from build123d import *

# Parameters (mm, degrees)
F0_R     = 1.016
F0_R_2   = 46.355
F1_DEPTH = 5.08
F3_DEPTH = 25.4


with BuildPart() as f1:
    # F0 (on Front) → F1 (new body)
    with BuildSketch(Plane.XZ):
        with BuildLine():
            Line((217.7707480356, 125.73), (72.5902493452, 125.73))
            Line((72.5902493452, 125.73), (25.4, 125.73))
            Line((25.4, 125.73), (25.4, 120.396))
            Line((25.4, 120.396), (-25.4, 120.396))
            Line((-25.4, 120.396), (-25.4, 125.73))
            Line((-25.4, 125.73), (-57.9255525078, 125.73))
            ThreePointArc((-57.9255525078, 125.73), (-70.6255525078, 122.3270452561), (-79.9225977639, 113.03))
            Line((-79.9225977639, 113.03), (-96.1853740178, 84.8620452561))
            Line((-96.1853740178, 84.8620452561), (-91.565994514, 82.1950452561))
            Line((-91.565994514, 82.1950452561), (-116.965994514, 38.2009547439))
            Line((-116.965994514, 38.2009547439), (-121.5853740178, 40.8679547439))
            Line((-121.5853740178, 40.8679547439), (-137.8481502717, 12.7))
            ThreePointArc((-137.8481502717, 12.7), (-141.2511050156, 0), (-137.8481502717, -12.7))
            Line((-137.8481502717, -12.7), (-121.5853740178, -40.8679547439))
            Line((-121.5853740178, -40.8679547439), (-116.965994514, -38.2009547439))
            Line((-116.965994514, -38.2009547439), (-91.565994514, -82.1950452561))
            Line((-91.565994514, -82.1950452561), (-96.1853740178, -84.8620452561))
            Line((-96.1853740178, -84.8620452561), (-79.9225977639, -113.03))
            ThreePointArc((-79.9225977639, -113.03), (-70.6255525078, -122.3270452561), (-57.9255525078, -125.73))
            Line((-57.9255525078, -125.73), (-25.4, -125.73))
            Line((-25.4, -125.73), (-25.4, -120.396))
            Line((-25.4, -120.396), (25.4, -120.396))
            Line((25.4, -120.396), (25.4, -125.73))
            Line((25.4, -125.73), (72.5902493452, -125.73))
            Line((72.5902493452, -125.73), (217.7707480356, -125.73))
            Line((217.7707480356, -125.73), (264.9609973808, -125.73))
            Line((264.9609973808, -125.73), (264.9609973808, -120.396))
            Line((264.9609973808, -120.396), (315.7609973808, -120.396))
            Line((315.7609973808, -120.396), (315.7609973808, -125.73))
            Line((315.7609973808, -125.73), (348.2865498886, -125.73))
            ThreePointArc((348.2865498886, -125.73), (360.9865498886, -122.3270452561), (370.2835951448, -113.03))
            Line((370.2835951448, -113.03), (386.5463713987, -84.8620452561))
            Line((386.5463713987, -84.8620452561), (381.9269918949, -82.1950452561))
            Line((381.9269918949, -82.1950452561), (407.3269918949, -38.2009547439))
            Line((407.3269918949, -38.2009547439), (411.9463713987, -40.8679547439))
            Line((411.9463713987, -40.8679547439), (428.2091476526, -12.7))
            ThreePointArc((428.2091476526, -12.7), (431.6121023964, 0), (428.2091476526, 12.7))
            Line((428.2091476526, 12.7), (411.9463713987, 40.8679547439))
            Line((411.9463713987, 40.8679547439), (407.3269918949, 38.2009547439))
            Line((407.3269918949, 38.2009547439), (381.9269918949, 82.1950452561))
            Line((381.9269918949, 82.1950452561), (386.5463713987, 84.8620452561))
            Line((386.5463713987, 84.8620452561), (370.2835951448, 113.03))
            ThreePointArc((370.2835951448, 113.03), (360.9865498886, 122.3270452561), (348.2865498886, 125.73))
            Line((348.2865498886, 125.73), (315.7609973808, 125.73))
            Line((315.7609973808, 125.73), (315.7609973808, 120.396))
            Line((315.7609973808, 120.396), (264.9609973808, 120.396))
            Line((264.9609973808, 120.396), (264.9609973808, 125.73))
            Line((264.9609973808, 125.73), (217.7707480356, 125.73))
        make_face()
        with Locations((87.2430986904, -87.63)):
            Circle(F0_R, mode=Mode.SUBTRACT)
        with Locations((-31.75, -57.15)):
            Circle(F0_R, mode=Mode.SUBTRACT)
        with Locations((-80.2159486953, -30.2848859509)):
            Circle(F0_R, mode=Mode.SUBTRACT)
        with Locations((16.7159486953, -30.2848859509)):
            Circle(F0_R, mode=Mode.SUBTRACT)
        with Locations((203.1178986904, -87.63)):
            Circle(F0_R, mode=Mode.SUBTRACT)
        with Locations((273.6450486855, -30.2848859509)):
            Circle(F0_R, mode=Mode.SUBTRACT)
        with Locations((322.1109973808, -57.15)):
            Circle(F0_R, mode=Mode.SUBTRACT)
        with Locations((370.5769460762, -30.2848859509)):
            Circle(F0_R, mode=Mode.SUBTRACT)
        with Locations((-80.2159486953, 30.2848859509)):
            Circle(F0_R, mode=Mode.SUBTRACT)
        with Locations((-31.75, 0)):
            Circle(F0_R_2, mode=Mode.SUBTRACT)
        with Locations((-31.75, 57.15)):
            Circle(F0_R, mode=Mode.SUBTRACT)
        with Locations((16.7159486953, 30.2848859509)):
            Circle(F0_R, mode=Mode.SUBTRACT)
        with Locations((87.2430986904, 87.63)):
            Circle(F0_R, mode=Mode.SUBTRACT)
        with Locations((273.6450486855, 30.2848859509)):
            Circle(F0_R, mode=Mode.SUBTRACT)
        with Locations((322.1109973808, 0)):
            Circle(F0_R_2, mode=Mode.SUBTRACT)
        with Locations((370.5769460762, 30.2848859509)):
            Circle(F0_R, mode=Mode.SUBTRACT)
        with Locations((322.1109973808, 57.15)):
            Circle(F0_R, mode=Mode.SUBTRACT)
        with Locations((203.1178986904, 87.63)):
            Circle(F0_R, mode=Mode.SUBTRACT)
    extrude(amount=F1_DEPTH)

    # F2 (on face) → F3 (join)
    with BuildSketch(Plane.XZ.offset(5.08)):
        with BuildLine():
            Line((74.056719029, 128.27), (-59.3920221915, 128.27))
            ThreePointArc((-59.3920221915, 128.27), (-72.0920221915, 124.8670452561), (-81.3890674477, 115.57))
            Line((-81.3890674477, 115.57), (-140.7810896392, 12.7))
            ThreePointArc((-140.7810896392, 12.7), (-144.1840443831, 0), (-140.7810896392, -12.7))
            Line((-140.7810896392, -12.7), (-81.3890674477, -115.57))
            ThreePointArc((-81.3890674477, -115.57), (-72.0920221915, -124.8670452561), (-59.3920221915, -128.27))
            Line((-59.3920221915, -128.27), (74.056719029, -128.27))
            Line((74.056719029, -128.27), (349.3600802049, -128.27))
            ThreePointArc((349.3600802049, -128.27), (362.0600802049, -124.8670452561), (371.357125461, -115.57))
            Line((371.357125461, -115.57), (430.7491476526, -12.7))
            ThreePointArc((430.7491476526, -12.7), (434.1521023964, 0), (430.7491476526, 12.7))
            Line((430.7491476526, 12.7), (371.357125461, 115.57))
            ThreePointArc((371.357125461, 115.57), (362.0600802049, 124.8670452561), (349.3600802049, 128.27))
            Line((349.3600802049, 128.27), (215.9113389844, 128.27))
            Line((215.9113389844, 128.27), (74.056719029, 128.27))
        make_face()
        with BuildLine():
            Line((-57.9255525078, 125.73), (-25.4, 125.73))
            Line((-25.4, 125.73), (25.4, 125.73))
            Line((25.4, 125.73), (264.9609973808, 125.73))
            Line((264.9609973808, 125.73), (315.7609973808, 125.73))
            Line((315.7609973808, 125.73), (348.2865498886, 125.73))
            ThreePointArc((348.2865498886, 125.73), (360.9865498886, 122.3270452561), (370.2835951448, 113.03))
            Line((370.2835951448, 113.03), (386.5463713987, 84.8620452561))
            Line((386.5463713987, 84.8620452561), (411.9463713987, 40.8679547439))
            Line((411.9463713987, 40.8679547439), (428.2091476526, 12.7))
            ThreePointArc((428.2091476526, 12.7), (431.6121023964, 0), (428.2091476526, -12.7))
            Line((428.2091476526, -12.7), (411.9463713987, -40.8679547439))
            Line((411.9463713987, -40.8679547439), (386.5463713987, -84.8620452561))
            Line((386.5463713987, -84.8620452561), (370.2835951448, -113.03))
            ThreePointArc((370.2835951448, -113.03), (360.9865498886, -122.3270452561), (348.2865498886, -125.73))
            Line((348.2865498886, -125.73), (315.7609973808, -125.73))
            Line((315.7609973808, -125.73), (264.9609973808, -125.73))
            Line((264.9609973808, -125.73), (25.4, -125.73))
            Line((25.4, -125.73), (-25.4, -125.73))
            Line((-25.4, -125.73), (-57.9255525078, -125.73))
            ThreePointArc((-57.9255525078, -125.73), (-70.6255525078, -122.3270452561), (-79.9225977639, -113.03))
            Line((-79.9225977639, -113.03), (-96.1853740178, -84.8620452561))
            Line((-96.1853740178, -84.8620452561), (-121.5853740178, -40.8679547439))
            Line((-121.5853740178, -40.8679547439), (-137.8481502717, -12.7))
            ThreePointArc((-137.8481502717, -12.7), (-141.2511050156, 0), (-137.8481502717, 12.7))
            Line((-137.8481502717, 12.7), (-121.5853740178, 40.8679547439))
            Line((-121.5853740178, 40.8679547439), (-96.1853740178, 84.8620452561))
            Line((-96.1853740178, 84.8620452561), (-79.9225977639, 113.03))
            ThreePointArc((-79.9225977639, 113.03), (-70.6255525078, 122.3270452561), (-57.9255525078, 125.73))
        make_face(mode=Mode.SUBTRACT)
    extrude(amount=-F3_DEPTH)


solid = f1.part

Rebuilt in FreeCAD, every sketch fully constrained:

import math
import FreeCAD as App
import Part
import Sketcher
from FreeCAD import Vector
Q = App.Units.Quantity

doc = App.newDocument("Part")
body = doc.addObject("PartDesign::Body", "Body")

# Sketch on XZ plane
sketch1 = body.newObject("Sketcher::SketchObject", "Sketch")
sketch1.AttachmentSupport = (doc.getObject("XZ_Plane"), [""])
sketch1.MapMode = "FlatFace"
sketch1.addGeometry(Part.LineSegment(Vector(25.4, 125.7, 0), Vector(25.4, 120.4, 0)), False)
sketch1.addGeometry(Part.LineSegment(Vector(25.4, 120.4, 0), Vector(-25.4, 120.4, 0)), False)
sketch1.addGeometry(Part.LineSegment(Vector(-25.4, 120.4, 0), Vector(-25.4, 125.7, 0)), False)
sketch1.addGeometry(Part.LineSegment(Vector(-25.4, 125.7, 0), Vector(-57.9, 125.7, 0)), False)
sketch1.addGeometry(Part.ArcOfCircle(Part.Circle(Vector(-57.9, 100.3, 0), Vector(0, 0, 1), 25.4), math.radians(90), math.radians(150)), False)
sketch1.addGeometry(Part.LineSegment(Vector(-79.9, 113, 0), Vector(-96.2, 84.9, 0)), False)
sketch1.addGeometry(Part.LineSegment(Vector(-96.2, 84.9, 0), Vector(-91.6, 82.2, 0)), False)
sketch1.addGeometry(Part.LineSegment(Vector(-91.6, 82.2, 0), Vector(-117, 38.2, 0)), False)
sketch1.addGeometry(Part.LineSegment(Vector(-117, 38.2, 0), Vector(-121.6, 40.9, 0)), False)
sketch1.addGeometry(Part.LineSegment(Vector(-121.6, 40.9, 0), Vector(-137.8, 12.7, 0)), False)
sketch1.addGeometry(Part.ArcOfCircle(Part.Circle(Vector(-115.9, 0, 0), Vector(0, 0, 1), 25.4), math.radians(150), math.radians(210)), False)
sketch1.addGeometry(Part.LineSegment(Vector(-137.8, -12.7, 0), Vector(-121.6, -40.9, 0)), False)
sketch1.addGeometry(Part.LineSegment(Vector(-121.6, -40.9, 0), Vector(-117, -38.2, 0)), False)
sketch1.addGeometry(Part.LineSegment(Vector(-117, -38.2, 0), Vector(-91.6, -82.2, 0)), False)
sketch1.addGeometry(Part.LineSegment(Vector(-91.6, -82.2, 0), Vector(-96.2, -84.9, 0)), False)
sketch1.addGeometry(Part.LineSegment(Vector(-96.2, -84.9, 0), Vector(-79.9, -113, 0)), False)
sketch1.addGeometry(Part.ArcOfCircle(Part.Circle(Vector(-57.9, -100.3, 0), Vector(0, 0, 1), 25.4), math.radians(-150), math.radians(-90)), False)
sketch1.addGeometry(Part.LineSegment(Vector(-57.9, -125.7, 0), Vector(-25.4, -125.7, 0)), False)
sketch1.addGeometry(Part.LineSegment(Vector(-25.4, -125.7, 0), Vector(-25.4, -120.4, 0)), False)
sketch1.addGeometry(Part.LineSegment(Vector(-25.4, -120.4, 0), Vector(25.4, -120.4, 0)), False)
sketch1.addGeometry(Part.LineSegment(Vector(25.4, -120.4, 0), Vector(25.4, -125.7, 0)), False)
sketch1.addGeometry(Part.LineSegment(Vector(25.4, -125.7, 0), Vector(265, -125.7, 0)), False)
sketch1.addGeometry(Part.LineSegment(Vector(265, -125.7, 0), Vector(265, -120.4, 0)), False)
sketch1.addGeometry(Part.LineSegment(Vector(265, -120.4, 0), Vector(315.8, -120.4, 0)), False)
sketch1.addGeometry(Part.LineSegment(Vector(315.8, -120.4, 0), Vector(315.8, -125.7, 0)), False)
sketch1.addGeometry(Part.LineSegment(Vector(315.8, -125.7, 0), Vector(348.3, -125.7, 0)), False)
sketch1.addGeometry(Part.ArcOfCircle(Part.Circle(Vector(348.3, -100.3, 0), Vector(0, 0, 1), 25.4), math.radians(-90), math.radians(-30)), False)
sketch1.addGeometry(Part.LineSegment(Vector(370.3, -113, 0), Vector(386.5, -84.9, 0)), False)
sketch1.addGeometry(Part.LineSegment(Vector(386.5, -84.9, 0), Vector(381.9, -82.2, 0)), False)
sketch1.addGeometry(Part.LineSegment(Vector(381.9, -82.2, 0), Vector(407.3, -38.2, 0)), False)
sketch1.addGeometry(Part.LineSegment(Vector(407.3, -38.2, 0), Vector(411.9, -40.9, 0)), False)
sketch1.addGeometry(Part.LineSegment(Vector(411.9, -40.9, 0), Vector(428.2, -12.7, 0)), False)
sketch1.addGeometry(Part.ArcOfCircle(Part.Circle(Vector(406.2, 0, 0), Vector(0, 0, 1), 25.4), math.radians(-30), math.radians(30)), False)
sketch1.addGeometry(Part.LineSegment(Vector(428.2, 12.7, 0), Vector(411.9, 40.9, 0)), False)
sketch1.addGeometry(Part.LineSegment(Vector(411.9, 40.9, 0), Vector(407.3, 38.2, 0)), False)
sketch1.addGeometry(Part.LineSegment(Vector(407.3, 38.2, 0), Vector(381.9, 82.2, 0)), False)
sketch1.addGeometry(Part.LineSegment(Vector(381.9, 82.2, 0), Vector(386.5, 84.9, 0)), False)
sketch1.addGeometry(Part.LineSegment(Vector(386.5, 84.9, 0), Vector(370.3, 113, 0)), False)
sketch1.addGeometry(Part.ArcOfCircle(Part.Circle(Vector(348.3, 100.3, 0), Vector(0, 0, 1), 25.4), math.radians(30), math.radians(90)), False)
sketch1.addGeometry(Part.LineSegment(Vector(348.3, 125.7, 0), Vector(315.8, 125.7, 0)), False)
sketch1.addGeometry(Part.LineSegment(Vector(315.8, 125.7, 0), Vector(315.8, 120.4, 0)), False)
sketch1.addGeometry(Part.LineSegment(Vector(315.8, 120.4, 0), Vector(265, 120.4, 0)), False)
sketch1.addGeometry(Part.LineSegment(Vector(265, 120.4, 0), Vector(265, 125.7, 0)), False)
sketch1.addGeometry(Part.LineSegment(Vector(265, 125.7, 0), Vector(25.4, 125.7, 0)), False)
sketch1.addGeometry(Part.Circle(Vector(-31.8, -57.1, 0), Vector(0, 0, 1), 1), False)
sketch1.addGeometry(Part.Circle(Vector(87.2, -87.6, 0), Vector(0, 0, 1), 1), False)
sketch1.addGeometry(Part.Circle(Vector(-80.2, -30.3, 0), Vector(0, 0, 1), 1), False)
sketch1.addGeometry(Part.Circle(Vector(16.7, -30.3, 0), Vector(0, 0, 1), 1), False)
sketch1.addGeometry(Part.Circle(Vector(203.1, -87.6, 0), Vector(0, 0, 1), 1), False)
sketch1.addGeometry(Part.Circle(Vector(322.1, -57.1, 0), Vector(0, 0, 1), 1), False)
sketch1.addGeometry(Part.Circle(Vector(273.6, -30.3, 0), Vector(0, 0, 1), 1), False)
sketch1.addGeometry(Part.Circle(Vector(370.6, -30.3, 0), Vector(0, 0, 1), 1), False)
sketch1.addGeometry(Part.Circle(Vector(-31.8, 0, 0), Vector(0, 0, 1), 46.4), False)
sketch1.addGeometry(Part.Circle(Vector(-80.2, 30.3, 0), Vector(0, 0, 1), 1), False)
sketch1.addGeometry(Part.Circle(Vector(16.7, 30.3, 0), Vector(0, 0, 1), 1), False)
sketch1.addGeometry(Part.Circle(Vector(-31.8, 57.1, 0), Vector(0, 0, 1), 1), False)
sketch1.addGeometry(Part.Circle(Vector(87.2, 87.6, 0), Vector(0, 0, 1), 1), False)
sketch1.addGeometry(Part.Circle(Vector(322.1, 0, 0), Vector(0, 0, 1), 46.4), False)
sketch1.addGeometry(Part.Circle(Vector(273.6, 30.3, 0), Vector(0, 0, 1), 1), False)
sketch1.addGeometry(Part.Circle(Vector(370.6, 30.3, 0), Vector(0, 0, 1), 1), False)
sketch1.addGeometry(Part.Circle(Vector(203.1, 87.6, 0), Vector(0, 0, 1), 1), False)
sketch1.addGeometry(Part.Circle(Vector(322.1, 57.1, 0), Vector(0, 0, 1), 1), False)
sketch1.addConstraint(Sketcher.Constraint("Coincident", 0, 2, 1, 1))
sketch1.addConstraint(Sketcher.Constraint("Coincident", 1, 2, 2, 1))
sketch1.addConstraint(Sketcher.Constraint("Coincident", 2, 2, 3, 1))
sketch1.addConstraint(Sketcher.Constraint("Tangent", 3, 2, 4, 1))
sketch1.addConstraint(Sketcher.Constraint("Tangent", 4, 2, 5, 1))
sketch1.addConstraint(Sketcher.Constraint("Coincident", 5, 2, 6, 1))
sketch1.addConstraint(Sketcher.Constraint("Coincident", 6, 2, 7, 1))
sketch1.addConstraint(Sketcher.Constraint("Coincident", 7, 2, 8, 1))
sketch1.addConstraint(Sketcher.Constraint("Coincident", 8, 2, 9, 1))
sketch1.addConstraint(Sketcher.Constraint("Tangent", 9, 2, 10, 1))
sketch1.addConstraint(Sketcher.Constraint("Tangent", 10, 2, 11, 1))
sketch1.addConstraint(Sketcher.Constraint("Coincident", 11, 2, 12, 1))
sketch1.addConstraint(Sketcher.Constraint("Coincident", 12, 2, 13, 1))
sketch1.addConstraint(Sketcher.Constraint("Coincident", 13, 2, 14, 1))
sketch1.addConstraint(Sketcher.Constraint("Coincident", 14, 2, 15, 1))
sketch1.addConstraint(Sketcher.Constraint("Tangent", 15, 2, 16, 1))
sketch1.addConstraint(Sketcher.Constraint("Tangent", 16, 2, 17, 1))
sketch1.addConstraint(Sketcher.Constraint("Coincident", 17, 2, 18, 1))
sketch1.addConstraint(Sketcher.Constraint("Coincident", 18, 2, 19, 1))
sketch1.addConstraint(Sketcher.Constraint("Coincident", 19, 2, 20, 1))
sketch1.addConstraint(Sketcher.Constraint("Coincident", 20, 2, 21, 1))
sketch1.addConstraint(Sketcher.Constraint("Coincident", 21, 2, 22, 1))
sketch1.addConstraint(Sketcher.Constraint("Coincident", 22, 2, 23, 1))
sketch1.addConstraint(Sketcher.Constraint("Coincident", 23, 2, 24, 1))
sketch1.addConstraint(Sketcher.Constraint("Coincident", 24, 2, 25, 1))
sketch1.addConstraint(Sketcher.Constraint("Tangent", 25, 2, 26, 1))
sketch1.addConstraint(Sketcher.Constraint("Tangent", 26, 2, 27, 1))
sketch1.addConstraint(Sketcher.Constraint("Coincident", 27, 2, 28, 1))
sketch1.addConstraint(Sketcher.Constraint("Coincident", 28, 2, 29, 1))
sketch1.addConstraint(Sketcher.Constraint("Coincident", 29, 2, 30, 1))
sketch1.addConstraint(Sketcher.Constraint("Coincident", 30, 2, 31, 1))
sketch1.addConstraint(Sketcher.Constraint("Tangent", 31, 2, 32, 1))
sketch1.addConstraint(Sketcher.Constraint("Tangent", 32, 2, 33, 1))
sketch1.addConstraint(Sketcher.Constraint("Coincident", 33, 2, 34, 1))
sketch1.addConstraint(Sketcher.Constraint("Coincident", 34, 2, 35, 1))
sketch1.addConstraint(Sketcher.Constraint("Coincident", 35, 2, 36, 1))
sketch1.addConstraint(Sketcher.Constraint("Coincident", 36, 2, 37, 1))
sketch1.addConstraint(Sketcher.Constraint("Tangent", 37, 2, 38, 1))
sketch1.addConstraint(Sketcher.Constraint("Tangent", 38, 2, 39, 1))
sketch1.addConstraint(Sketcher.Constraint("Coincident", 39, 2, 40, 1))
sketch1.addConstraint(Sketcher.Constraint("Coincident", 40, 2, 41, 1))
sketch1.addConstraint(Sketcher.Constraint("Coincident", 41, 2, 42, 1))
sketch1.addConstraint(Sketcher.Constraint("Coincident", 42, 2, 43, 1))
sketch1.addConstraint(Sketcher.Constraint("Coincident", 43, 2, 0, 1))
sketch1.addConstraint(Sketcher.Constraint("Vertical", 0))
sketch1.addConstraint(Sketcher.Constraint("Horizontal", 1))
sketch1.addConstraint(Sketcher.Constraint("Vertical", 2))
sketch1.addConstraint(Sketcher.Constraint("Horizontal", 3))
sketch1.addConstraint(Sketcher.Constraint("Horizontal", 17))
sketch1.addConstraint(Sketcher.Constraint("Vertical", 18))
sketch1.addConstraint(Sketcher.Constraint("Horizontal", 19))
sketch1.addConstraint(Sketcher.Constraint("Vertical", 20))
sketch1.addConstraint(Sketcher.Constraint("Horizontal", 21))
sketch1.addConstraint(Sketcher.Constraint("Vertical", 22))
sketch1.addConstraint(Sketcher.Constraint("Horizontal", 23))
sketch1.addConstraint(Sketcher.Constraint("Vertical", 24))
sketch1.addConstraint(Sketcher.Constraint("Horizontal", 25))
sketch1.addConstraint(Sketcher.Constraint("Horizontal", 39))
sketch1.addConstraint(Sketcher.Constraint("Vertical", 40))
sketch1.addConstraint(Sketcher.Constraint("Horizontal", 41))
sketch1.addConstraint(Sketcher.Constraint("Vertical", 42))
sketch1.addConstraint(Sketcher.Constraint("Horizontal", 43))
sketch1.addConstraint(Sketcher.Constraint("Equal", 4, 10))
sketch1.addConstraint(Sketcher.Constraint("Equal", 10, 16))
sketch1.addConstraint(Sketcher.Constraint("Equal", 16, 26))
sketch1.addConstraint(Sketcher.Constraint("Equal", 26, 32))
sketch1.addConstraint(Sketcher.Constraint("Equal", 32, 38))
sketch1.addConstraint(Sketcher.Constraint("Equal", 44, 45))
sketch1.addConstraint(Sketcher.Constraint("Equal", 45, 46))
sketch1.addConstraint(Sketcher.Constraint("Equal", 46, 47))
sketch1.addConstraint(Sketcher.Constraint("Equal", 47, 48))
sketch1.addConstraint(Sketcher.Constraint("Equal", 48, 49))
sketch1.addConstraint(Sketcher.Constraint("Equal", 49, 50))
sketch1.addConstraint(Sketcher.Constraint("Equal", 50, 51))
sketch1.addConstraint(Sketcher.Constraint("Equal", 51, 53))
sketch1.addConstraint(Sketcher.Constraint("Equal", 53, 54))
sketch1.addConstraint(Sketcher.Constraint("Equal", 54, 55))
sketch1.addConstraint(Sketcher.Constraint("Equal", 55, 56))
sketch1.addConstraint(Sketcher.Constraint("Equal", 52, 57))
sketch1.addConstraint(Sketcher.Constraint("Equal", 56, 58))
sketch1.addConstraint(Sketcher.Constraint("Equal", 58, 59))
sketch1.addConstraint(Sketcher.Constraint("Equal", 59, 60))
sketch1.addConstraint(Sketcher.Constraint("Equal", 60, 61))
sketch1.addConstraint(Sketcher.Constraint("Symmetric", 0, 2, 18, 2, -1, 1))
sketch1.addConstraint(Sketcher.Constraint("Symmetric", 2, 2, 20, 2, -1, 1))
sketch1.addConstraint(Sketcher.Constraint("Symmetric", 17, 2, 20, 2, -2))
sketch1.addConstraint(Sketcher.Constraint("Symmetric", 26, 3, 38, 3, -1))
sketch1.addConstraint(Sketcher.Constraint("Symmetric", 46, 3, 53, 3, -1))
sketch1.addConstraint(Sketcher.Constraint("Symmetric", 47, 3, 54, 3, -1))
sketch1.addConstraint(Sketcher.Constraint("Symmetric", 44, 3, 55, 3, -1))
sketch1.addConstraint(Sketcher.Constraint("Symmetric", 45, 3, 56, 3, -1))
sketch1.addConstraint(Sketcher.Constraint("Symmetric", 50, 3, 58, 3, -1))
sketch1.addConstraint(Sketcher.Constraint("Symmetric", 51, 3, 59, 3, -1))
sketch1.addConstraint(Sketcher.Constraint("Symmetric", 48, 3, 60, 3, -1))
sketch1.addConstraint(Sketcher.Constraint("Symmetric", 49, 3, 61, 3, -1))
sketch1.addConstraint(Sketcher.Constraint("Symmetric", 9, 2, 10, 2, -1))
sketch1.addConstraint(Sketcher.Constraint("Symmetric", 7, 2, 12, 2, -1))
sketch1.addConstraint(Sketcher.Constraint("Symmetric", 6, 2, 13, 2, -1))
sketch1.addConstraint(Sketcher.Constraint("Symmetric", 5, 2, 14, 2, -1))
sketch1.addConstraint(Sketcher.Constraint("Symmetric", 31, 2, 32, 2, -1))
sketch1.addConstraint(Sketcher.Constraint("Symmetric", 29, 2, 34, 2, -1))
sketch1.addConstraint(Sketcher.Constraint("Symmetric", 28, 2, 35, 2, -1))
sketch1.addConstraint(Sketcher.Constraint("Symmetric", 27, 2, 36, 2, -1))
sketch1.addConstraint(Sketcher.Constraint("Symmetric", 23, 2, 40, 2, -1))
sketch1.addConstraint(Sketcher.Constraint("Symmetric", 21, 2, 42, 2, -1))
sketch1.addConstraint(Sketcher.Constraint("PointOnObject", 52, 3, -1))
sketch1.addConstraint(Sketcher.Constraint("PointOnObject", 57, 3, -1))
sketch1.addConstraint(Sketcher.Constraint("Perpendicular", 5, 6))
sketch1.addConstraint(Sketcher.Constraint("Perpendicular", 6, 7))
sketch1.addConstraint(Sketcher.Constraint("Perpendicular", 7, 8))
sketch1.addConstraint(Sketcher.Constraint("Perpendicular", 8, 9))
sketch1.addConstraint(Sketcher.Constraint("Perpendicular", 11, 12))
sketch1.addConstraint(Sketcher.Constraint("Perpendicular", 14, 15))
sketch1.addConstraint(Sketcher.Constraint("Parallel", 9, 27))
sketch1.addConstraint(Sketcher.Constraint("Perpendicular", 27, 28))
sketch1.addConstraint(Sketcher.Constraint("Perpendicular", 28, 29))
sketch1.addConstraint(Sketcher.Constraint("Perpendicular", 29, 30))
sketch1.addConstraint(Sketcher.Constraint("Perpendicular", 30, 31))
sketch1.addConstraint(Sketcher.Constraint("Perpendicular", 33, 34))
sketch1.addConstraint(Sketcher.Constraint("Horizontal", 16, 3, 26, 3))
sketch1.addConstraint(Sketcher.Constraint("Horizontal", 46, 3, 47, 3))
sketch1.addConstraint(Sketcher.Constraint("Horizontal", 45, 3, 48, 3))
sketch1.addConstraint(Sketcher.Constraint("Horizontal", 44, 3, 49, 3))
sketch1.addConstraint(Sketcher.Constraint("Horizontal", 47, 3, 50, 3))
sketch1.addConstraint(Sketcher.Constraint("Horizontal", 50, 3, 51, 3))
sketch1.addConstraint(Sketcher.Constraint("Horizontal", 19, 2, 22, 2))
sketch1.addConstraint(Sketcher.Constraint("Horizontal", 14, 2, 27, 2))
sketch1.addConstraint(Sketcher.Constraint("Horizontal", 13, 2, 28, 2))
sketch1.addConstraint(Sketcher.Constraint("Horizontal", 12, 2, 29, 2))
sketch1.addConstraint(Sketcher.Constraint("Horizontal", 11, 2, 30, 2))
sketch1.addConstraint(Sketcher.Constraint("Vertical", 44, 3, 52, 3))
sketch1.addConstraint(Sketcher.Constraint("Vertical", 49, 3, 57, 3))
sketch1.addConstraint(Sketcher.Constraint("Equal", 19, 23))
sketch1.addConstraint(Sketcher.Constraint("Equal", 17, 25))
sketch1.addConstraint(Sketcher.Constraint("Equal", 6, 8))
sketch1.addConstraint(Sketcher.Constraint("Equal", 5, 9))
sketch1.addConstraint(Sketcher.Constraint("Radius", 4, Q("1 in")))
sketch1.addConstraint(Sketcher.Constraint("Diameter", 44, Q("0.08 in")))
sketch1.addConstraint(Sketcher.Constraint("Diameter", 52, Q("3.65 in")))
sketch1.addConstraint(Sketcher.Constraint("DistanceX", 1, 2, 1, 1, Q("2 in")))
sketch1.addConstraint(Sketcher.Constraint("Distance", 7, Q("2 in")))
sketch1.addConstraint(Sketcher.Constraint("Angle", 5, Q("-120 deg")))
sketch1.addConstraint(Sketcher.Constraint("DistanceY", 0, 2, 0, 1, Q("0.21 in")))
sketch1.addConstraint(Sketcher.Constraint("Distance", 6, Q("0.21 in")))
sketch1.addConstraint(Sketcher.Constraint("DistanceY", -1, 1, 4, 3, Q("3.95 in")))
sketch1.addConstraint(Sketcher.Constraint("DistanceX", 44, 3, -1, 1, Q("1.25 in")))
sketch1.addConstraint(Sketcher.Constraint("DistanceY", 44, 3, -1, 1, Q("2.25 in")))
sketch1.addConstraint(Sketcher.Constraint("DistanceY", 45, 3, -1, 1, Q("3.45 in")))
sketch1.addConstraint(Sketcher.Constraint("DistanceX", -1, 1, 45, 3, 87.243099))
sketch1.addConstraint(Sketcher.Constraint("DistanceX", -1, 1, 48, 3, 203.117899))
sketch1.addConstraint(Sketcher.Constraint("DistanceX", 3, 2, 3, 1, 32.525553))
sketch1.addConstraint(Sketcher.Constraint("DistanceX", 21, 1, 21, 2, 239.560997))
sketch1.addConstraint(Sketcher.Constraint("DistanceX", 46, 3, -1, 1, 80.215949))
sketch1.addConstraint(Sketcher.Constraint("DistanceX", -1, 1, 47, 3, 16.715949))
sketch1.addConstraint(Sketcher.Constraint("DistanceX", -1, 1, 50, 3, 273.645049))
sketch1.addConstraint(Sketcher.Constraint("DistanceY", 46, 3, -1, 1, 30.284886))
sketch1.addConstraint(Sketcher.Constraint("DistanceX", -1, 1, 49, 3, 322.110997))
sketch1.addConstraint(Sketcher.Constraint("DistanceX", -1, 1, 51, 3, 370.576946))
pad1 = body.newObject("PartDesign::Pad", "Pad")
pad1.Profile = sketch1
pad1.Length = Q("0.2 in")

# Sketch on XZ plane
sketch2 = body.newObject("Sketcher::SketchObject", "Sketch001")
sketch2.AttachmentSupport = (doc.getObject("XZ_Plane"), [""])
sketch2.MapMode = "FlatFace"
sketch2.AttachmentOffset = App.Placement(Vector(0, 0, 0.2 * 25.4), App.Rotation())
sketch2.addGeometry(Part.ArcOfCircle(Part.Circle(Vector(-59, 103, 0), Vector(0, 0, 1), 25), math.radians(90), math.radians(150)), False)
sketch2.addGeometry(Part.LineSegment(Vector(-81, 116, 0), Vector(-141, 13, 0)), False)
sketch2.addGeometry(Part.ArcOfCircle(Part.Circle(Vector(-119, 0, 0), Vector(0, 0, 1), 25), math.radians(150), math.radians(210)), False)
sketch2.addGeometry(Part.LineSegment(Vector(-141, -13, 0), Vector(-81, -116, 0)), False)
sketch2.addGeometry(Part.ArcOfCircle(Part.Circle(Vector(-59, -103, 0), Vector(0, 0, 1), 25), math.radians(-150), math.radians(-90)), False)
sketch2.addGeometry(Part.LineSegment(Vector(-59, -128, 0), Vector(349, -128, 0)), False)
sketch2.addGeometry(Part.ArcOfCircle(Part.Circle(Vector(349, -103, 0), Vector(0, 0, 1), 25), math.radians(-90), math.radians(-30)), False)
sketch2.addGeometry(Part.LineSegment(Vector(371, -116, 0), Vector(431, -13, 0)), False)
sketch2.addGeometry(Part.ArcOfCircle(Part.Circle(Vector(409, 0, 0), Vector(0, 0, 1), 25), math.radians(-30), math.radians(30)), False)
sketch2.addGeometry(Part.LineSegment(Vector(431, 13, 0), Vector(371, 116, 0)), False)
sketch2.addGeometry(Part.ArcOfCircle(Part.Circle(Vector(349, 103, 0), Vector(0, 0, 1), 25), math.radians(30), math.radians(90)), False)
sketch2.addGeometry(Part.LineSegment(Vector(349, 128, 0), Vector(-59, 128, 0)), False)
sketch2.addGeometry(Part.ArcOfCircle(Part.Circle(Vector(-58, 100, 0), Vector(0, 0, 1), 25), math.radians(90), math.radians(150)), False)
sketch2.addGeometry(Part.LineSegment(Vector(-58, 126, 0), Vector(348, 126, 0)), False)
sketch2.addGeometry(Part.ArcOfCircle(Part.Circle(Vector(348, 100, 0), Vector(0, 0, 1), 25), math.radians(30), math.radians(90)), False)
sketch2.addGeometry(Part.LineSegment(Vector(370, 113, 0), Vector(428, 13, 0)), False)
sketch2.addGeometry(Part.ArcOfCircle(Part.Circle(Vector(406, 0, 0), Vector(0, 0, 1), 25), math.radians(-30), math.radians(30)), False)
sketch2.addGeometry(Part.LineSegment(Vector(428, -13, 0), Vector(370, -113, 0)), False)
sketch2.addGeometry(Part.ArcOfCircle(Part.Circle(Vector(348, -100, 0), Vector(0, 0, 1), 25), math.radians(-90), math.radians(-30)), False)
sketch2.addGeometry(Part.LineSegment(Vector(348, -126, 0), Vector(-58, -126, 0)), False)
sketch2.addGeometry(Part.ArcOfCircle(Part.Circle(Vector(-58, -100, 0), Vector(0, 0, 1), 25), math.radians(-150), math.radians(-90)), False)
sketch2.addGeometry(Part.LineSegment(Vector(-80, -113, 0), Vector(-138, -13, 0)), False)
sketch2.addGeometry(Part.ArcOfCircle(Part.Circle(Vector(-116, 0, 0), Vector(0, 0, 1), 25), math.radians(150), math.radians(210)), False)
sketch2.addGeometry(Part.LineSegment(Vector(-138, 13, 0), Vector(-80, 113, 0)), False)
sketch2.addConstraint(Sketcher.Constraint("Tangent", 0, 2, 1, 1))
sketch2.addConstraint(Sketcher.Constraint("Tangent", 1, 2, 2, 1))
sketch2.addConstraint(Sketcher.Constraint("Tangent", 2, 2, 3, 1))
sketch2.addConstraint(Sketcher.Constraint("Tangent", 3, 2, 4, 1))
sketch2.addConstraint(Sketcher.Constraint("Tangent", 4, 2, 5, 1))
sketch2.addConstraint(Sketcher.Constraint("Tangent", 5, 2, 6, 1))
sketch2.addConstraint(Sketcher.Constraint("Tangent", 6, 2, 7, 1))
sketch2.addConstraint(Sketcher.Constraint("Tangent", 7, 2, 8, 1))
sketch2.addConstraint(Sketcher.Constraint("Tangent", 8, 2, 9, 1))
sketch2.addConstraint(Sketcher.Constraint("Tangent", 9, 2, 10, 1))
sketch2.addConstraint(Sketcher.Constraint("Tangent", 10, 2, 11, 1))
sketch2.addConstraint(Sketcher.Constraint("Tangent", 11, 2, 0, 1))
sketch2.addConstraint(Sketcher.Constraint("Tangent", 12, 1, 13, 1))
sketch2.addConstraint(Sketcher.Constraint("Tangent", 13, 2, 14, 2))
sketch2.addConstraint(Sketcher.Constraint("Tangent", 14, 1, 15, 1))
sketch2.addConstraint(Sketcher.Constraint("Tangent", 15, 2, 16, 2))
sketch2.addConstraint(Sketcher.Constraint("Tangent", 16, 1, 17, 1))
sketch2.addConstraint(Sketcher.Constraint("Tangent", 17, 2, 18, 2))
sketch2.addConstraint(Sketcher.Constraint("Tangent", 18, 1, 19, 1))
sketch2.addConstraint(Sketcher.Constraint("Tangent", 19, 2, 20, 2))
sketch2.addConstraint(Sketcher.Constraint("Tangent", 20, 1, 21, 1))
sketch2.addConstraint(Sketcher.Constraint("Tangent", 21, 2, 22, 2))
sketch2.addConstraint(Sketcher.Constraint("Tangent", 22, 1, 23, 1))
sketch2.addConstraint(Sketcher.Constraint("Tangent", 23, 2, 12, 2))
sketch2.addConstraint(Sketcher.Constraint("Horizontal", 5))
sketch2.addConstraint(Sketcher.Constraint("Horizontal", 11))
sketch2.addConstraint(Sketcher.Constraint("Horizontal", 13))
sketch2.addConstraint(Sketcher.Constraint("Horizontal", 19))
sketch2.addConstraint(Sketcher.Constraint("Equal", 0, 2))
sketch2.addConstraint(Sketcher.Constraint("Equal", 2, 4))
sketch2.addConstraint(Sketcher.Constraint("Equal", 4, 6))
sketch2.addConstraint(Sketcher.Constraint("Equal", 6, 8))
sketch2.addConstraint(Sketcher.Constraint("Equal", 8, 10))
sketch2.addConstraint(Sketcher.Constraint("Equal", 10, 12))
sketch2.addConstraint(Sketcher.Constraint("Equal", 12, 14))
sketch2.addConstraint(Sketcher.Constraint("Equal", 14, 16))
sketch2.addConstraint(Sketcher.Constraint("Equal", 16, 18))
sketch2.addConstraint(Sketcher.Constraint("Equal", 18, 20))
sketch2.addConstraint(Sketcher.Constraint("Equal", 20, 22))
sketch2.addConstraint(Sketcher.Constraint("Symmetric", 0, 3, 4, 3, -1))
sketch2.addConstraint(Sketcher.Constraint("Symmetric", 14, 3, 18, 3, -1))
sketch2.addConstraint(Sketcher.Constraint("Symmetric", 7, 2, 8, 2, -1))
sketch2.addConstraint(Sketcher.Constraint("Symmetric", 21, 2, 22, 1, -1))
sketch2.addConstraint(Sketcher.Constraint("PointOnObject", 2, 3, -1))
sketch2.addConstraint(Sketcher.Constraint("PointOnObject", 16, 3, -1))
sketch2.addConstraint(Sketcher.Constraint("Parallel", 1, 7))
sketch2.addConstraint(Sketcher.Constraint("Parallel", 9, 15))
sketch2.addConstraint(Sketcher.Constraint("Parallel", 15, 21))
sketch2.addConstraint(Sketcher.Constraint("Radius", 0, Q("1 in")))
sketch2.addConstraint(Sketcher.Constraint("Angle", 1, Q("-120 deg")))
sketch2.addConstraint(Sketcher.Constraint("DistanceY", 4, 3, 12, 3, Q("8 in")))
sketch2.addConstraint(Sketcher.Constraint("DistanceY", 4, 3, 0, 3, Q("8.1 in")))
sketch2.addConstraint(Sketcher.Constraint("DistanceX", 16, 3, 8, 3, Q("0.1 in")))
sketch2.addConstraint(Sketcher.Constraint("DistanceX", 5, 1, 5, 2, 408.752102))
sketch2.addConstraint(Sketcher.Constraint("DistanceX", 13, 1, 13, 2, 406.212102))
sketch2.addConstraint(Sketcher.Constraint("DistanceX", -1, 1, 6, 3, 349.36008))
pad2 = body.newObject("PartDesign::Pad", "Pad001")
pad2.Profile = sketch2
pad2.Length = Q("1 in")
pad2.Reversed = True

doc.recompute()
